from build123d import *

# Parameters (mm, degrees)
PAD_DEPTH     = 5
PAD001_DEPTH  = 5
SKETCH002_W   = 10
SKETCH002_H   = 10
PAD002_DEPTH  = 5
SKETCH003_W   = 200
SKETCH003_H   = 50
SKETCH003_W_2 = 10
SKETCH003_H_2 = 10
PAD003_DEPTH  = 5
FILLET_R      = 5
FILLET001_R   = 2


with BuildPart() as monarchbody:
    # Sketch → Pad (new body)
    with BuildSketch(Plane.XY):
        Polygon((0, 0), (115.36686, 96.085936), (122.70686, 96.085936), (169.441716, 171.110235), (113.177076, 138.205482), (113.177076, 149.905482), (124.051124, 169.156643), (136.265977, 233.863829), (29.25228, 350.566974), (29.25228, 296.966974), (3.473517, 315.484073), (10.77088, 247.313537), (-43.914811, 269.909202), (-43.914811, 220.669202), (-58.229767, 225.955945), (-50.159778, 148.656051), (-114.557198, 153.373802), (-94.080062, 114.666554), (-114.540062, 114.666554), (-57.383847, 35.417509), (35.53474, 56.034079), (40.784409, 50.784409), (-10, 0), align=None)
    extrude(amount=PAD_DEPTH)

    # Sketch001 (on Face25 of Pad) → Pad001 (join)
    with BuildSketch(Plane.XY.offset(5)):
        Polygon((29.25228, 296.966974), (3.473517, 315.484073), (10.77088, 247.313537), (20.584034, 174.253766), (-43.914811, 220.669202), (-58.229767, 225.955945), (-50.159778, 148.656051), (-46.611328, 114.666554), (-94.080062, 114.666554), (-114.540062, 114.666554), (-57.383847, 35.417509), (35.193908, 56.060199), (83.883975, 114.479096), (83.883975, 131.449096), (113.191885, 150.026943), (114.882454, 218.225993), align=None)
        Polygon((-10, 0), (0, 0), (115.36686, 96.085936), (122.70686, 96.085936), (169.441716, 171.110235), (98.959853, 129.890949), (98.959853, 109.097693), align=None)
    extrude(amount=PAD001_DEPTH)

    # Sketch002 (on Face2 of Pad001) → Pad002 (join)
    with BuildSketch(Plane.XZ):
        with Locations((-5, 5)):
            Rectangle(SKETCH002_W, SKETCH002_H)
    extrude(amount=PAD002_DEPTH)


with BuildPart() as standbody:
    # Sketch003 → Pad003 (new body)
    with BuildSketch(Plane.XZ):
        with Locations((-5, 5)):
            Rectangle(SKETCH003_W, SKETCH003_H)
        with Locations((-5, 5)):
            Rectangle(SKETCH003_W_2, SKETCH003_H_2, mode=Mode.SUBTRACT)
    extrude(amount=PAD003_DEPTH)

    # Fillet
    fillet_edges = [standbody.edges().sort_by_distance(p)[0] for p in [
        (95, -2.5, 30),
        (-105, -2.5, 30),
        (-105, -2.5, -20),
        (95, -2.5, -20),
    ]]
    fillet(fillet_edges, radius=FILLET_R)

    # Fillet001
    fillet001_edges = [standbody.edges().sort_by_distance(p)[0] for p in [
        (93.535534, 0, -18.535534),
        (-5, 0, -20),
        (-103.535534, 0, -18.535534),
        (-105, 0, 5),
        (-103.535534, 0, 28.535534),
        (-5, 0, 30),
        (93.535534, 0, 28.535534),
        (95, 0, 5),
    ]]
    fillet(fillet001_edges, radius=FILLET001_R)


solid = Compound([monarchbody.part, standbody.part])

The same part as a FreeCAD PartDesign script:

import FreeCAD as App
import Part
import Sketcher
Q = App.Units.Quantity


def edges_at(feature, points):
    """Names of the edges that pass closest to the given points."""
    edges = feature.Shape.Edges
    near = lambda p: min(range(len(edges)), key=lambda i: edges[i].distToShape(Part.Vertex(*p))[0])
    return sorted({f"Edge{near(p) + 1}" for p in points})

doc = App.newDocument("Part")
body = doc.addObject("PartDesign::Body", "Body")

sketch1 = body.newObject("Sketcher::SketchObject", "Sketch")
sketch1.AttachmentSupport = (doc.getObject("XY_Plane"), [""])
sketch1.MapMode = "FlatFace"
sketch1.addGeometry(Part.LineSegment(App.Vector(0, 0, 0), App.Vector(115, 96, 0)), False)
sketch1.addGeometry(Part.LineSegment(App.Vector(115, 96, 0), App.Vector(123, 96, 0)), False)
sketch1.addGeometry(Part.LineSegment(App.Vector(123, 96, 0), App.Vector(169, 171, 0)), False)
sketch1.addGeometry(Part.LineSegment(App.Vector(169, 171, 0), App.Vector(113, 138, 0)), False)
sketch1.addGeometry(Part.LineSegment(App.Vector(113, 138, 0), App.Vector(113, 150, 0)), False)
sketch1.addGeometry(Part.LineSegment(App.Vector(113, 150, 0), App.Vector(124, 169, 0)), False)
sketch1.addGeometry(Part.LineSegment(App.Vector(124, 169, 0), App.Vector(136, 234, 0)), False)
sketch1.addGeometry(Part.LineSegment(App.Vector(136, 234, 0), App.Vector(29, 351, 0)), False)
sketch1.addGeometry(Part.LineSegment(App.Vector(29, 351, 0), App.Vector(29, 297, 0)), False)
sketch1.addGeometry(Part.LineSegment(App.Vector(29, 297, 0), App.Vector(3, 315, 0)), False)
sketch1.addGeometry(Part.LineSegment(App.Vector(3, 315, 0), App.Vector(11, 247, 0)), False)
sketch1.addGeometry(Part.LineSegment(App.Vector(11, 247, 0), App.Vector(-44, 270, 0)), False)
sketch1.addGeometry(Part.LineSegment(App.Vector(-44, 270, 0), App.Vector(-44, 221, 0)), False)
sketch1.addGeometry(Part.LineSegment(App.Vector(-44, 221, 0), App.Vector(-58, 226, 0)), False)
sketch1.addGeometry(Part.LineSegment(App.Vector(-58, 226, 0), App.Vector(-50, 149, 0)), False)
sketch1.addGeometry(Part.LineSegment(App.Vector(-50, 149, 0), App.Vector(-115, 153, 0)), False)
sketch1.addGeometry(Part.LineSegment(App.Vector(-115, 153, 0), App.Vector(-94, 115, 0)), False)
sketch1.addGeometry(Part.LineSegment(App.Vector(-94, 115, 0), App.Vector(-115, 115, 0)), False)
sketch1.addGeometry(Part.LineSegment(App.Vector(-115, 115, 0), App.Vector(-57, 35, 0)), False)
sketch1.addGeometry(Part.LineSegment(App.Vector(-57, 35, 0), App.Vector(36, 56, 0)), False)
sketch1.addGeometry(Part.LineSegment(App.Vector(36, 56, 0), App.Vector(41, 51, 0)), False)
sketch1.addGeometry(Part.LineSegment(App.Vector(41, 51, 0), App.Vector(-10, 0, 0)), False)
sketch1.addGeometry(Part.LineSegment(App.Vector(-10, 0, 0), App.Vector(0, 0, 0)), False)
sketch1.addConstraint(Sketcher.Constraint("Coincident", 0, 2, 1, 1))
sketch1.addConstraint(Sketcher.Constraint("Coincident", 1, 2, 2, 1))
sketch1.addConstraint(Sketcher.Constraint("Coincident", 2, 2, 3, 1))
sketch1.addConstraint(Sketcher.Constraint("Coincident", 3, 2, 4, 1))
sketch1.addConstraint(Sketcher.Constraint("Coincident", 4, 2, 5, 1))
sketch1.addConstraint(Sketcher.Constraint("Coincident", 5, 2, 6, 1))
sketch1.addConstraint(Sketcher.Constraint("Coincident", 6, 2, 7, 1))
sketch1.addConstraint(Sketcher.Constraint("Coincident", 7, 2, 8, 1))
sketch1.addConstraint(Sketcher.Constraint("Coincident", 8, 2, 9, 1))
sketch1.addConstraint(Sketcher.Constraint("Coincident", 9, 2, 10, 1))
sketch1.addConstraint(Sketcher.Constraint("Coincident", 10, 2, 11, 1))
sketch1.addConstraint(Sketcher.Constraint("Coincident", 11, 2, 12, 1))
sketch1.addConstraint(Sketcher.Constraint("Coincident", 12, 2, 13, 1))
sketch1.addConstraint(Sketcher.Constraint("Coincident", 13, 2, 14, 1))
sketch1.addConstraint(Sketcher.Constraint("Coincident", 14, 2, 15, 1))
sketch1.addConstraint(Sketcher.Constraint("Coincident", 15, 2, 16, 1))
sketch1.addConstraint(Sketcher.Constraint("Coincident", 16, 2, 17, 1))
sketch1.addConstraint(Sketcher.Constraint("Coincident", 17, 2, 18, 1))
sketch1.addConstraint(Sketcher.Constraint("Coincident", 18, 2, 19, 1))
sketch1.addConstraint(Sketcher.Constraint("Coincident", 19, 2, 20, 1))
sketch1.addConstraint(Sketcher.Constraint("Coincident", 20, 2, 21, 1))
sketch1.addConstraint(Sketcher.Constraint("Coincident", 21, 2, 22, 1))
sketch1.addConstraint(Sketcher.Constraint("Coincident", 22, 2, 0, 1))
sketch1.addConstraint(Sketcher.Constraint("Horizontal", 1))
sketch1.addConstraint(Sketcher.Constraint("Vertical", 4))
sketch1.addConstraint(Sketcher.Constraint("Vertical", 8))
sketch1.addConstraint(Sketcher.Constraint("Vertical", 12))
sketch1.addConstraint(Sketcher.Constraint("Horizontal", 17))
sketch1.addConstraint(Sketcher.Constraint("Horizontal", 22))
sketch1.addConstraint(Sketcher.Constraint("Coincident", 22, 2, -1, 1))
sketch1.addConstraint(Sketcher.Constraint("Perpendicular", 20, 21))
sketch1.addConstraint(Sketcher.Constraint("DistanceX", 22, 1, 22, 2, Q("10 mm")))
sketch1.addConstraint(Sketcher.Constraint("Angle", 20, Q("-45.000005 deg")))
sketch1.addConstraint(Sketcher.Constraint("DistanceY", 4, 1, 4, 2, Q("11.7 mm")))
sketch1.addConstraint(Sketcher.Constraint("DistanceY", 8, 2, 8, 1, Q("53.6 mm")))
sketch1.addConstraint(Sketcher.Constraint("Angle", 18, Q("-54.199999 deg")))
sketch1.addConstraint(Sketcher.Constraint("DistanceX", 1, 1, 1, 2, Q("7.34 mm")))
sketch1.addConstraint(Sketcher.Constraint("DistanceX", 17, 2, 17, 1, Q("20.46 mm")))
sketch1.addConstraint(Sketcher.Constraint("DistanceY", 12, 2, 12, 1, Q("49.24 mm")))
sketch1.addConstraint(Sketcher.Constraint("Angle", 0, Q("39.79 deg")))
sketch1.addConstraint(Sketcher.Constraint("Angle", 2, Q("58.08 deg")))
sketch1.addConstraint(Sketcher.Constraint("Angle", 3, Q("-149.68 deg")))
sketch1.addConstraint(Sketcher.Constraint("Angle", 5, Q("60.54 deg")))
sketch1.addConstraint(Sketcher.Constraint("Angle", 6, Q("79.31 deg")))
sketch1.addConstraint(Sketcher.Constraint("Angle", 7, Q("132.52 deg")))
sketch1.addConstraint(Sketcher.Constraint("Angle", 9, Q("144.31 deg")))
sketch1.addConstraint(Sketcher.Constraint("Angle", 10, Q("-83.89 deg")))
sketch1.addConstraint(Sketcher.Constraint("Angle", 11, Q("157.55 deg")))
sketch1.addConstraint(Sketcher.Constraint("Angle", 13, Q("159.730003 deg")))
sketch1.addConstraint(Sketcher.Constraint("Angle", 14, Q("-84.04 deg")))
sketch1.addConstraint(Sketcher.Constraint("Angle", 15, Q("175.81 deg")))
sketch1.addConstraint(Sketcher.Constraint("Angle", 16, Q("-62.120001 deg")))
sketch1.addConstraint(Sketcher.Constraint("Angle", 19, Q("12.51 deg")))
sketch1.addConstraint(Sketcher.Constraint("Distance", 0, Q("150.14 mm")))
sketch1.addConstraint(Sketcher.Constraint("Distance", 2, Q("88.390001 mm")))
sketch1.addConstraint(Sketcher.Constraint("Distance", 3, Q("65.180001 mm")))
sketch1.addConstraint(Sketcher.Constraint("Distance", 5, Q("22.11 mm")))
sketch1.addConstraint(Sketcher.Constraint("Distance", 6, Q("65.85 mm")))
sketch1.addConstraint(Sketcher.Constraint("Distance", 7, Q("158.339999 mm")))
sketch1.addConstraint(Sketcher.Constraint("Distance", 9, Q("31.74 mm")))
sketch1.addConstraint(Sketcher.Constraint("Distance", 10, Q("68.559999 mm")))
sketch1.addConstraint(Sketcher.Constraint("Distance", 11, Q("59.17 mm")))
sketch1.addConstraint(Sketcher.Constraint("Distance", 13, Q("15.260001 mm")))
sketch1.addConstraint(Sketcher.Constraint("Distance", 14, Q("77.72 mm")))
sketch1.addConstraint(Sketcher.Constraint("Distance", 15, Q("64.57 mm")))
sketch1.addConstraint(Sketcher.Constraint("Distance", 16, Q("43.790001 mm")))
sketch1.addConstraint(Sketcher.Constraint("Distance", 18, Q("97.71 mm")))
sketch1.addConstraint(Sketcher.Constraint("Distance", 21, Q("71.82 mm")))
pad1 = body.newObject("PartDesign::Pad", "Pad")
pad1.Profile = sketch1
pad1.Length = 5

sketch2 = body.newObject("Sketcher::SketchObject", "Sketch001")
sketch2.AttachmentSupport = (doc.getObject("XY_Plane"), [""])
sketch2.MapMode = "FlatFace"
sketch2.AttachmentOffset = App.Placement(App.Vector(0, 0, 5), App.Rotation())
sketch2.addGeometry(Part.LineSegment(App.Vector(29, 297, 0), App.Vector(3, 315, 0)), False)
sketch2.addGeometry(Part.LineSegment(App.Vector(3, 315, 0), App.Vector(11, 247, 0)), False)
sketch2.addGeometry(Part.LineSegment(App.Vector(11, 247, 0), App.Vector(21, 174, 0)), False)
sketch2.addGeometry(Part.LineSegment(App.Vector(21, 174, 0), App.Vector(-44, 221, 0)), False)
sketch2.addGeometry(Part.LineSegment(App.Vector(-44, 221, 0), App.Vector(-58, 226, 0)), False)
sketch2.addGeometry(Part.LineSegment(App.Vector(-58, 226, 0), App.Vector(-50, 149, 0)), False)
sketch2.addGeometry(Part.LineSegment(App.Vector(-50, 149, 0), App.Vector(-47, 115, 0)), False)
sketch2.addGeometry(Part.LineSegment(App.Vector(-47, 115, 0), App.Vector(-115, 115, 0)), False)
sketch2.addGeometry(Part.LineSegment(App.Vector(-115, 115, 0), App.Vector(-57, 35, 0)), False)
sketch2.addGeometry(Part.LineSegment(App.Vector(-57, 35, 0), App.Vector(35, 56, 0)), False)
sketch2.addGeometry(Part.LineSegment(App.Vector(35, 56, 0), App.Vector(84, 114, 0)), False)
sketch2.addGeometry(Part.LineSegment(App.Vector(84, 114, 0), App.Vector(84, 131, 0)), False)
sketch2.addGeometry(Part.LineSegment(App.Vector(84, 131, 0), App.Vector(113, 150, 0)), False)
sketch2.addGeometry(Part.LineSegment(App.Vector(113, 150, 0), App.Vector(115, 218, 0)), False)
sketch2.addGeometry(Part.LineSegment(App.Vector(115, 218, 0), App.Vector(29, 297, 0)), False)
sketch2.addGeometry(Part.LineSegment(App.Vector(-10, 0, 0), App.Vector(0, 0, 0)), False)
sketch2.addGeometry(Part.LineSegment(App.Vector(0, 0, 0), App.Vector(115, 96, 0)), False)
sketch2.addGeometry(Part.LineSegment(App.Vector(115, 96, 0), App.Vector(123, 96, 0)), False)
sketch2.addGeometry(Part.LineSegment(App.Vector(123, 96, 0), App.Vector(169, 171, 0)), False)
sketch2.addGeometry(Part.LineSegment(App.Vector(169, 171, 0), App.Vector(99, 130, 0)), False)
sketch2.addGeometry(Part.LineSegment(App.Vector(99, 130, 0), App.Vector(99, 109, 0)), False)
sketch2.addGeometry(Part.LineSegment(App.Vector(99, 109, 0), App.Vector(-10, 0, 0)), False)
sketch2.addConstraint(Sketcher.Constraint("Coincident", 0, 2, 1, 1))
sketch2.addConstraint(Sketcher.Constraint("Coincident", 1, 2, 2, 1))
sketch2.addConstraint(Sketcher.Constraint("Coincident", 2, 2, 3, 1))
sketch2.addConstraint(Sketcher.Constraint("Coincident", 3, 2, 4, 1))
sketch2.addConstraint(Sketcher.Constraint("Coincident", 4, 2, 5, 1))
sketch2.addConstraint(Sketcher.Constraint("Coincident", 5, 2, 6, 1))
sketch2.addConstraint(Sketcher.Constraint("Coincident", 6, 2, 7, 1))
sketch2.addConstraint(Sketcher.Constraint("Coincident", 7, 2, 8, 1))
sketch2.addConstraint(Sketcher.Constraint("Coincident", 8, 2, 9, 1))
sketch2.addConstraint(Sketcher.Constraint("Coincident", 9, 2, 10, 1))
sketch2.addConstraint(Sketcher.Constraint("Coincident", 10, 2, 11, 1))
sketch2.addConstraint(Sketcher.Constraint("Coincident", 11, 2, 12, 1))
sketch2.addConstraint(Sketcher.Constraint("Coincident", 12, 2, 13, 1))
sketch2.addConstraint(Sketcher.Constraint("Coincident", 13, 2, 14, 1))
sketch2.addConstraint(Sketcher.Constraint("Coincident", 14, 2, 0, 1))
sketch2.addConstraint(Sketcher.Constraint("Coincident", 15, 2, 16, 1))
sketch2.addConstraint(Sketcher.Constraint("Coincident", 16, 2, 17, 1))
sketch2.addConstraint(Sketcher.Constraint("Coincident", 17, 2, 18, 1))
sketch2.addConstraint(Sketcher.Constraint("Coincident", 18, 2, 19, 1))
sketch2.addConstraint(Sketcher.Constraint("Coincident", 19, 2, 20, 1))
sketch2.addConstraint(Sketcher.Constraint("Coincident", 20, 2, 21, 1))
sketch2.addConstraint(Sketcher.Constraint("Coincident", 21, 2, 15, 1))
sketch2.addConstraint(Sketcher.Constraint("Horizontal", 7))
sketch2.addConstraint(Sketcher.Constraint("Vertical", 11))
sketch2.addConstraint(Sketcher.Constraint("Horizontal", 15))
sketch2.addConstraint(Sketcher.Constraint("Horizontal", 17))
sketch2.addConstraint(Sketcher.Constraint("Vertical", 20))
sketch2.addConstraint(Sketcher.Constraint("Coincident", 15, 2, -1, 1))
sketch2.addConstraint(Sketcher.Constraint("Parallel", 5, 6))
sketch2.addConstraint(Sketcher.Constraint("DistanceX", 15, 1, 15, 2, Q("10 mm")))
sketch2.addConstraint(Sketcher.Constraint("Angle", 8, Q("-54.199999 deg")))
sketch2.addConstraint(Sketcher.Constraint("Angle", 14, Q("137.4 deg")))
sketch2.addConstraint(Sketcher.Constraint("Distance", 12, Q("34.7 mm")))
sketch2.addConstraint(Sketcher.Constraint("DistanceX", 17, 1, 17, 2, Q("7.34 mm")))
sketch2.addConstraint(Sketcher.Constraint("DistanceY", 11, 1, 11, 2, Q("16.97 mm")))
sketch2.addConstraint(Sketcher.Constraint("Angle", 0, Q("144.31 deg")))
sketch2.addConstraint(Sketcher.Constraint("Angle", 1, Q("-83.89 deg")))
sketch2.addConstraint(Sketcher.Constraint("Angle", 2, Q("-82.35 deg")))
sketch2.addConstraint(Sketcher.Constraint("Angle", 3, Q("144.26 deg")))
sketch2.addConstraint(Sketcher.Constraint("Angle", 4, Q("159.730003 deg")))
sketch2.addConstraint(Sketcher.Constraint("Angle", 5, Q("-84.04 deg")))
sketch2.addConstraint(Sketcher.Constraint("Angle", 9, Q("12.57 deg")))
sketch2.addConstraint(Sketcher.Constraint("Angle", 10, Q("50.19 deg")))
sketch2.addConstraint(Sketcher.Constraint("Angle", 12, Q("32.370001 deg")))
sketch2.addConstraint(Sketcher.Constraint("Angle", 13, Q("88.58 deg")))
sketch2.addConstraint(Sketcher.Constraint("Angle", 16, Q("39.79 deg")))
sketch2.addConstraint(Sketcher.Constraint("Angle", 18, Q("58.08 deg")))
sketch2.addConstraint(Sketcher.Constraint("Angle", 19, Q("-149.68 deg")))
sketch2.addConstraint(Sketcher.Constraint("Distance", 0, Q("31.74 mm")))
sketch2.addConstraint(Sketcher.Constraint("Distance", 1, Q("68.559999 mm")))
sketch2.addConstraint(Sketcher.Constraint("Distance", 4, Q("15.260001 mm")))
sketch2.addConstraint(Sketcher.Constraint("Distance", 5, Q("77.72 mm")))
sketch2.addConstraint(Sketcher.Constraint("Distance", 8, Q("97.71 mm")))
sketch2.addConstraint(Sketcher.Constraint("Distance", 13, Q("68.22 mm")))
sketch2.addConstraint(Sketcher.Constraint("Distance", 14, Q("116.33 mm")))
sketch2.addConstraint(Sketcher.Constraint("Distance", 16, Q("150.14 mm")))
sketch2.addConstraint(Sketcher.Constraint("Distance", 18, Q("88.390001 mm")))
sketch2.addConstraint(Sketcher.Constraint("Distance", 19, Q("81.65 mm")))
sketch2.addConstraint(Sketcher.Constraint("Distance", 21, Q("154.19 mm")))
sketch2.addConstraint(Sketcher.Constraint("DistanceY", -1, 1, 9, 2, Q("56.060199 mm")))
sketch2.addConstraint(Sketcher.Constraint("DistanceX", 4, 2, 2, 2, Q("78.813801 mm")))
sketch2.addConstraint(Sketcher.Constraint("Distance", 2, Q("73.715861 mm")))
sketch2.addConstraint(Sketcher.Constraint("Distance", 6, Q("34.174221 mm")))
sketch2.addConstraint(Sketcher.Constraint("Distance", 9, Q("94.851259 mm")))
sketch2.addConstraint(Sketcher.Constraint("DistanceX", -1, 1, 1, 2, Q("10.77088 mm")))
pad2 = body.newObject("PartDesign::Pad", "Pad001")
pad2.Profile = sketch2
pad2.Length = 5

sketch3 = body.newObject("Sketcher::SketchObject", "Sketch002")
sketch3.AttachmentSupport = (doc.getObject("XZ_Plane"), [""])
sketch3.MapMode = "FlatFace"
sketch3.addGeometry(Part.LineSegment(App.Vector(-10, 10, 0), App.Vector(-10, 0, 0)), False)
sketch3.addGeometry(Part.LineSegment(App.Vector(-10, 0, 0), App.Vector(0, 0, 0)), False)
sketch3.addGeometry(Part.LineSegment(App.Vector(0, 0, 0), App.Vector(0, 10, 0)), False)
sketch3.addGeometry(Part.LineSegment(App.Vector(0, 10, 0), App.Vector(-10, 10, 0)), False)
sketch3.addConstraint(Sketcher.Constraint("Coincident", 0, 2, 1, 1))
sketch3.addConstraint(Sketcher.Constraint("Coincident", 1, 2, 2, 1))
sketch3.addConstraint(Sketcher.Constraint("Coincident", 2, 2, 3, 1))
sketch3.addConstraint(Sketcher.Constraint("Coincident", 3, 2, 0, 1))
sketch3.addConstraint(Sketcher.Constraint("Vertical", 0))
sketch3.addConstraint(Sketcher.Constraint("Horizontal", 1))
sketch3.addConstraint(Sketcher.Constraint("Vertical", 2))
sketch3.addConstraint(Sketcher.Constraint("Horizontal", 3))
sketch3.addConstraint(Sketcher.Constraint("Coincident", 1, 2, -1, 1))
sketch3.addConstraint(Sketcher.Constraint("Equal", 3, 0))
sketch3.addConstraint(Sketcher.Constraint("DistanceX", 1, 1, 1, 2, Q("10 mm")))
pad3 = body.newObject("PartDesign::Pad", "Pad002")
pad3.Profile = sketch3
pad3.Length = 5
body2 = doc.addObject("PartDesign::Body", "Body001")

sketch4 = body2.newObject("Sketcher::SketchObject", "Sketch003")
sketch4.AttachmentSupport = (doc.getObject("XZ_Plane001"), [""])
sketch4.MapMode = "FlatFace"
sketch4.addGeometry(Part.LineSegment(App.Vector(-105, 30, 0), App.Vector(-105, -20, 0)), False)
sketch4.addGeometry(Part.LineSegment(App.Vector(-105, -20, 0), App.Vector(95, -20, 0)), False)
sketch4.addGeometry(Part.LineSegment(App.Vector(95, -20, 0), App.Vector(95, 30, 0)), False)
sketch4.addGeometry(Part.LineSegment(App.Vector(95, 30, 0), App.Vector(-105, 30, 0)), False)
sketch4.addGeometry(Part.LineSegment(App.Vector(0, 0, 0), App.Vector(-10, 0, 0)), False)
sketch4.addGeometry(Part.LineSegment(App.Vector(-10, 0, 0), App.Vector(-10, 10, 0)), False)
sketch4.addGeometry(Part.LineSegment(App.Vector(-10, 10, 0), App.Vector(0, 10, 0)), False)
sketch4.addGeometry(Part.LineSegment(App.Vector(0, 10, 0), App.Vector(0, 0, 0)), False)
sketch4.addConstraint(Sketcher.Constraint("Coincident", 0, 2, 1, 1))
sketch4.addConstraint(Sketcher.Constraint("Coincident", 1, 2, 2, 1))
sketch4.addConstraint(Sketcher.Constraint("Coincident", 2, 2, 3, 1))
sketch4.addConstraint(Sketcher.Constraint("Coincident", 3, 2, 0, 1))
sketch4.addConstraint(Sketcher.Constraint("Coincident", 4, 2, 5, 1))
sketch4.addConstraint(Sketcher.Constraint("Coincident", 5, 2, 6, 1))
sketch4.addConstraint(Sketcher.Constraint("Coincident", 6, 2, 7, 1))
sketch4.addConstraint(Sketcher.Constraint("Coincident", 7, 2, 4, 1))
sketch4.addConstraint(Sketcher.Constraint("Vertical", 0))
sketch4.addConstraint(Sketcher.Constraint("Horizontal", 1))
sketch4.addConstraint(Sketcher.Constraint("Vertical", 2))
sketch4.addConstraint(Sketcher.Constraint("Horizontal", 3))
sketch4.addConstraint(Sketcher.Constraint("Horizontal", 4))
sketch4.addConstraint(Sketcher.Constraint("Vertical", 5))
sketch4.addConstraint(Sketcher.Constraint("Horizontal", 6))
sketch4.addConstraint(Sketcher.Constraint("Vertical", 7))
sketch4.addConstraint(Sketcher.Constraint("Coincident", 7, 2, -1, 1))
sketch4.addConstraint(Sketcher.Constraint("Equal", 6, 5))
sketch4.addConstraint(Sketcher.Constraint("DistanceX", 1, 1, 1, 2, Q("200 mm")))
sketch4.addConstraint(Sketcher.Constraint("DistanceX", 4, 2, 4, 1, Q("10 mm")))
sketch4.addConstraint(Sketcher.Constraint("DistanceY", 0, 2, 0, 1, Q("50 mm")))
sketch4.addConstraint(Sketcher.Constraint("DistanceX", 0, 2, -1, 1, Q("105 mm")))
sketch4.addConstraint(Sketcher.Constraint("DistanceY", 0, 2, -1, 1, Q("20 mm")))
pad4 = body2.newObject("PartDesign::Pad", "Pad003")
pad4.Profile = sketch4
pad4.Length = 5
doc.recompute()

fillet = body2.newObject("PartDesign::Fillet", "Fillet")
fillet.Base = (pad4, edges_at(pad4, [
    (95, -2.5, 30),
    (-105, -2.5, 30),
    (-105, -2.5, -20),
    (95, -2.5, -20),
]))
fillet.Radius = 5
doc.recompute()

fillet2 = body2.newObject("PartDesign::Fillet", "Fillet001")
fillet2.Base = (fillet, edges_at(fillet, [
    (93.536, 0, -18.536),
    (-5, 0, -20),
    (-103.536, 0, -18.536),
    (-105, 0, 5),
    (-103.536, 0, 28.536),
    (-5, 0, 30),
    (93.536, 0, 28.536),
    (95, 0, 5),
]))
fillet2.Radius = 2

doc.recompute()
